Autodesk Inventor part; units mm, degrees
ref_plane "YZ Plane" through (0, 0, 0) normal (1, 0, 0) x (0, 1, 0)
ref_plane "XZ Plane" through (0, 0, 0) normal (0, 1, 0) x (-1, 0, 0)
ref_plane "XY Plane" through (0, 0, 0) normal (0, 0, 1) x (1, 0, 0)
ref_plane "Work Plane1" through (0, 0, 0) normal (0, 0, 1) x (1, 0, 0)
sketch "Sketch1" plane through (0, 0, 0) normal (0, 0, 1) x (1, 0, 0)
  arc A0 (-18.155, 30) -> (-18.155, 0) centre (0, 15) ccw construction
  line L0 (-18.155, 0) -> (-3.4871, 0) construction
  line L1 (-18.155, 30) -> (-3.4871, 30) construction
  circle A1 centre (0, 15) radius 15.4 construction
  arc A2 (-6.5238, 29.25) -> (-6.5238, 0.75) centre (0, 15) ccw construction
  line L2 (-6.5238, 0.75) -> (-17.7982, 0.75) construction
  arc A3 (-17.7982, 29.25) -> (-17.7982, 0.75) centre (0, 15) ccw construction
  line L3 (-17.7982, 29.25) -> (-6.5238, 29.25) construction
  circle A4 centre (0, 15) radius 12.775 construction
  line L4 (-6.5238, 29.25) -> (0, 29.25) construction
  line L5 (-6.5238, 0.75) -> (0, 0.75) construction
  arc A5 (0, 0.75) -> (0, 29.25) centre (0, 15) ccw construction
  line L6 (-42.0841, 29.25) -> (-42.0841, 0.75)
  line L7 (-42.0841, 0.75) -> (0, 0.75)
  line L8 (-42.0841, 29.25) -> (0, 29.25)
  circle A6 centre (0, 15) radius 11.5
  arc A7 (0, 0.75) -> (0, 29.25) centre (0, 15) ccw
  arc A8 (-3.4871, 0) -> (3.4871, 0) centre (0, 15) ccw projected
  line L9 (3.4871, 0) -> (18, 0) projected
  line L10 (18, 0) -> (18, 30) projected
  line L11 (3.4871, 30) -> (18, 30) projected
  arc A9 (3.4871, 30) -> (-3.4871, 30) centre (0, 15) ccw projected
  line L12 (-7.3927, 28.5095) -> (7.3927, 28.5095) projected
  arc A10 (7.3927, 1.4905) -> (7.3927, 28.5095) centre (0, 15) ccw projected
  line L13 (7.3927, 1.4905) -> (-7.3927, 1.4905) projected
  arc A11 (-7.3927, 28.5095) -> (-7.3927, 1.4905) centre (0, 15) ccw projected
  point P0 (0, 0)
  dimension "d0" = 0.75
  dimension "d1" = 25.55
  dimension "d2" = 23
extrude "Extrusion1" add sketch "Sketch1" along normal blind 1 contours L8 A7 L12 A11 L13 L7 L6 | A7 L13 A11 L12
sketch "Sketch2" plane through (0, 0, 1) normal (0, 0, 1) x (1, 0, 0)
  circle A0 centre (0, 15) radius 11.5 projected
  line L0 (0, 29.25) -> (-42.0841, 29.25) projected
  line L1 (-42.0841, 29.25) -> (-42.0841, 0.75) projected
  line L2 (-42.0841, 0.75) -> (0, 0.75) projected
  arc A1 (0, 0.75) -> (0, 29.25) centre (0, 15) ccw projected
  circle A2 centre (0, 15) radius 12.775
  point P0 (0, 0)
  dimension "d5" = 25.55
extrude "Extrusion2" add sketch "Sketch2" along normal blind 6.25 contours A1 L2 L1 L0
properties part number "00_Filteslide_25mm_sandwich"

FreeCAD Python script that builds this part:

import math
import FreeCAD as App
import Part
import Sketcher

doc = App.newDocument("Part")
body = doc.addObject("PartDesign::Body", "Body")

# Sketch on XY plane
sketch1 = doc.addObject("Sketcher::SketchObject", "Sketch")
body.addObject(sketch1)
sketch1.AttachmentSupport = (doc.XY_Plane, [""])
sketch1.MapMode = "FlatFace"
sketch1.addGeometry(Part.LineSegment(App.Vector(0, 29.25, 0), App.Vector(-42.0841, 29.25, 0)), False)
sketch1.addGeometry(Part.LineSegment(App.Vector(-42.0841, 29.25, 0), App.Vector(-42.0841, 0.75, 0)), False)
sketch1.addGeometry(Part.LineSegment(App.Vector(-42.0841, 0.75, 0), App.Vector(0, 0.75, 0)), False)
sketch1.addGeometry(Part.ArcOfCircle(Part.Circle(App.Vector(0, 15, 0), App.Vector(0, 0, 1), 14.25), math.radians(-90), math.radians(90)), False)
sketch1.addGeometry(Part.Circle(App.Vector(0, 15, 0), App.Vector(0, 0, 1), 11.5), False)
sketch1.addConstraint(Sketcher.Constraint("Coincident", 0, 2, 1, 1))
sketch1.addConstraint(Sketcher.Constraint("Coincident", 1, 2, 2, 1))
sketch1.addConstraint(Sketcher.Constraint("Tangent", 2, 2, 3, 1))
sketch1.addConstraint(Sketcher.Constraint("Tangent", 3, 2, 0, 1))
sketch1.addConstraint(Sketcher.Constraint("Horizontal", 0))
sketch1.addConstraint(Sketcher.Constraint("Vertical", 1))
sketch1.addConstraint(Sketcher.Constraint("Horizontal", 2))
sketch1.addConstraint(Sketcher.Constraint("Coincident", 4, 3, 3, 3))
sketch1.addConstraint(Sketcher.Constraint("PointOnObject", 3, 3, -2))
sketch1.addConstraint(Sketcher.Constraint("Diameter", 4, 23.0))
sketch1.addConstraint(Sketcher.Constraint("DistanceY", -1, 1, 1, 2, 0.75))
sketch1.addConstraint(Sketcher.Constraint("Radius", 3, 14.25))
sketch1.addConstraint(Sketcher.Constraint("DistanceX", 0, 2, 0, 1, 42.084))
pad1 = doc.addObject("PartDesign::Pad", "Pad")
body.addObject(pad1)
pad1.Profile = sketch1
pad1.Length = 1

# Sketch on XY plane
sketch2 = doc.addObject("Sketcher::SketchObject", "Sketch001")
body.addObject(sketch2)
sketch2.AttachmentSupport = (doc.XY_Plane, [""])
sketch2.MapMode = "FlatFace"
sketch2.AttachmentOffset = App.Placement(App.Vector(0, 0, 1), App.Rotation())
sketch2.addGeometry(Part.ArcOfCircle(Part.Circle(App.Vector(0, 15, 0), App.Vector(0, 0, 1), 14.25), math.radians(-90), math.radians(90)), False)
sketch2.addGeometry(Part.LineSegment(App.Vector(0, 29.25, 0), App.Vector(-42.0841, 29.25, 0)), False)
sketch2.addGeometry(Part.LineSegment(App.Vector(-42.0841, 29.25, 0), App.Vector(-42.0841, 0.75, 0)), False)
sketch2.addGeometry(Part.LineSegment(App.Vector(-42.0841, 0.75, 0), App.Vector(0, 0.75, 0)), False)
sketch2.addGeometry(Part.Circle(App.Vector(0, 15, 0), App.Vector(0, 0, 1), 12.775), False)
sketch2.addConstraint(Sketcher.Constraint("Tangent", 0, 2, 1, 1))
sketch2.addConstraint(Sketcher.Constraint("Coincident", 1, 2, 2, 1))
sketch2.addConstraint(Sketcher.Constraint("Coincident", 2, 2, 3, 1))
sketch2.addConstraint(Sketcher.Constraint("Tangent", 3, 2, 0, 1))
sketch2.addConstraint(Sketcher.Constraint("Horizontal", 1))
sketch2.addConstraint(Sketcher.Constraint("Vertical", 2))
sketch2.addConstraint(Sketcher.Constraint("Horizontal", 3))
sketch2.addConstraint(Sketcher.Constraint("Coincident", 4, 3, 0, 3))
sketch2.addConstraint(Sketcher.Constraint("PointOnObject", 0, 3, -2))
sketch2.addConstraint(Sketcher.Constraint("Diameter", 4, 25.55))
sketch2.addConstraint(Sketcher.Constraint("Radius", 0, 14.25))
sketch2.addConstraint(Sketcher.Constraint("DistanceY", -1, 1, 0, 3, 15.0))
sketch2.addConstraint(Sketcher.Constraint("DistanceX", 1, 2, 1, 1, 42.084))
pad2 = doc.addObject("PartDesign::Pad", "Pad001")
body.addObject(pad2)
pad2.Profile = sketch2
pad2.Length = 6.25

doc.recompute()
